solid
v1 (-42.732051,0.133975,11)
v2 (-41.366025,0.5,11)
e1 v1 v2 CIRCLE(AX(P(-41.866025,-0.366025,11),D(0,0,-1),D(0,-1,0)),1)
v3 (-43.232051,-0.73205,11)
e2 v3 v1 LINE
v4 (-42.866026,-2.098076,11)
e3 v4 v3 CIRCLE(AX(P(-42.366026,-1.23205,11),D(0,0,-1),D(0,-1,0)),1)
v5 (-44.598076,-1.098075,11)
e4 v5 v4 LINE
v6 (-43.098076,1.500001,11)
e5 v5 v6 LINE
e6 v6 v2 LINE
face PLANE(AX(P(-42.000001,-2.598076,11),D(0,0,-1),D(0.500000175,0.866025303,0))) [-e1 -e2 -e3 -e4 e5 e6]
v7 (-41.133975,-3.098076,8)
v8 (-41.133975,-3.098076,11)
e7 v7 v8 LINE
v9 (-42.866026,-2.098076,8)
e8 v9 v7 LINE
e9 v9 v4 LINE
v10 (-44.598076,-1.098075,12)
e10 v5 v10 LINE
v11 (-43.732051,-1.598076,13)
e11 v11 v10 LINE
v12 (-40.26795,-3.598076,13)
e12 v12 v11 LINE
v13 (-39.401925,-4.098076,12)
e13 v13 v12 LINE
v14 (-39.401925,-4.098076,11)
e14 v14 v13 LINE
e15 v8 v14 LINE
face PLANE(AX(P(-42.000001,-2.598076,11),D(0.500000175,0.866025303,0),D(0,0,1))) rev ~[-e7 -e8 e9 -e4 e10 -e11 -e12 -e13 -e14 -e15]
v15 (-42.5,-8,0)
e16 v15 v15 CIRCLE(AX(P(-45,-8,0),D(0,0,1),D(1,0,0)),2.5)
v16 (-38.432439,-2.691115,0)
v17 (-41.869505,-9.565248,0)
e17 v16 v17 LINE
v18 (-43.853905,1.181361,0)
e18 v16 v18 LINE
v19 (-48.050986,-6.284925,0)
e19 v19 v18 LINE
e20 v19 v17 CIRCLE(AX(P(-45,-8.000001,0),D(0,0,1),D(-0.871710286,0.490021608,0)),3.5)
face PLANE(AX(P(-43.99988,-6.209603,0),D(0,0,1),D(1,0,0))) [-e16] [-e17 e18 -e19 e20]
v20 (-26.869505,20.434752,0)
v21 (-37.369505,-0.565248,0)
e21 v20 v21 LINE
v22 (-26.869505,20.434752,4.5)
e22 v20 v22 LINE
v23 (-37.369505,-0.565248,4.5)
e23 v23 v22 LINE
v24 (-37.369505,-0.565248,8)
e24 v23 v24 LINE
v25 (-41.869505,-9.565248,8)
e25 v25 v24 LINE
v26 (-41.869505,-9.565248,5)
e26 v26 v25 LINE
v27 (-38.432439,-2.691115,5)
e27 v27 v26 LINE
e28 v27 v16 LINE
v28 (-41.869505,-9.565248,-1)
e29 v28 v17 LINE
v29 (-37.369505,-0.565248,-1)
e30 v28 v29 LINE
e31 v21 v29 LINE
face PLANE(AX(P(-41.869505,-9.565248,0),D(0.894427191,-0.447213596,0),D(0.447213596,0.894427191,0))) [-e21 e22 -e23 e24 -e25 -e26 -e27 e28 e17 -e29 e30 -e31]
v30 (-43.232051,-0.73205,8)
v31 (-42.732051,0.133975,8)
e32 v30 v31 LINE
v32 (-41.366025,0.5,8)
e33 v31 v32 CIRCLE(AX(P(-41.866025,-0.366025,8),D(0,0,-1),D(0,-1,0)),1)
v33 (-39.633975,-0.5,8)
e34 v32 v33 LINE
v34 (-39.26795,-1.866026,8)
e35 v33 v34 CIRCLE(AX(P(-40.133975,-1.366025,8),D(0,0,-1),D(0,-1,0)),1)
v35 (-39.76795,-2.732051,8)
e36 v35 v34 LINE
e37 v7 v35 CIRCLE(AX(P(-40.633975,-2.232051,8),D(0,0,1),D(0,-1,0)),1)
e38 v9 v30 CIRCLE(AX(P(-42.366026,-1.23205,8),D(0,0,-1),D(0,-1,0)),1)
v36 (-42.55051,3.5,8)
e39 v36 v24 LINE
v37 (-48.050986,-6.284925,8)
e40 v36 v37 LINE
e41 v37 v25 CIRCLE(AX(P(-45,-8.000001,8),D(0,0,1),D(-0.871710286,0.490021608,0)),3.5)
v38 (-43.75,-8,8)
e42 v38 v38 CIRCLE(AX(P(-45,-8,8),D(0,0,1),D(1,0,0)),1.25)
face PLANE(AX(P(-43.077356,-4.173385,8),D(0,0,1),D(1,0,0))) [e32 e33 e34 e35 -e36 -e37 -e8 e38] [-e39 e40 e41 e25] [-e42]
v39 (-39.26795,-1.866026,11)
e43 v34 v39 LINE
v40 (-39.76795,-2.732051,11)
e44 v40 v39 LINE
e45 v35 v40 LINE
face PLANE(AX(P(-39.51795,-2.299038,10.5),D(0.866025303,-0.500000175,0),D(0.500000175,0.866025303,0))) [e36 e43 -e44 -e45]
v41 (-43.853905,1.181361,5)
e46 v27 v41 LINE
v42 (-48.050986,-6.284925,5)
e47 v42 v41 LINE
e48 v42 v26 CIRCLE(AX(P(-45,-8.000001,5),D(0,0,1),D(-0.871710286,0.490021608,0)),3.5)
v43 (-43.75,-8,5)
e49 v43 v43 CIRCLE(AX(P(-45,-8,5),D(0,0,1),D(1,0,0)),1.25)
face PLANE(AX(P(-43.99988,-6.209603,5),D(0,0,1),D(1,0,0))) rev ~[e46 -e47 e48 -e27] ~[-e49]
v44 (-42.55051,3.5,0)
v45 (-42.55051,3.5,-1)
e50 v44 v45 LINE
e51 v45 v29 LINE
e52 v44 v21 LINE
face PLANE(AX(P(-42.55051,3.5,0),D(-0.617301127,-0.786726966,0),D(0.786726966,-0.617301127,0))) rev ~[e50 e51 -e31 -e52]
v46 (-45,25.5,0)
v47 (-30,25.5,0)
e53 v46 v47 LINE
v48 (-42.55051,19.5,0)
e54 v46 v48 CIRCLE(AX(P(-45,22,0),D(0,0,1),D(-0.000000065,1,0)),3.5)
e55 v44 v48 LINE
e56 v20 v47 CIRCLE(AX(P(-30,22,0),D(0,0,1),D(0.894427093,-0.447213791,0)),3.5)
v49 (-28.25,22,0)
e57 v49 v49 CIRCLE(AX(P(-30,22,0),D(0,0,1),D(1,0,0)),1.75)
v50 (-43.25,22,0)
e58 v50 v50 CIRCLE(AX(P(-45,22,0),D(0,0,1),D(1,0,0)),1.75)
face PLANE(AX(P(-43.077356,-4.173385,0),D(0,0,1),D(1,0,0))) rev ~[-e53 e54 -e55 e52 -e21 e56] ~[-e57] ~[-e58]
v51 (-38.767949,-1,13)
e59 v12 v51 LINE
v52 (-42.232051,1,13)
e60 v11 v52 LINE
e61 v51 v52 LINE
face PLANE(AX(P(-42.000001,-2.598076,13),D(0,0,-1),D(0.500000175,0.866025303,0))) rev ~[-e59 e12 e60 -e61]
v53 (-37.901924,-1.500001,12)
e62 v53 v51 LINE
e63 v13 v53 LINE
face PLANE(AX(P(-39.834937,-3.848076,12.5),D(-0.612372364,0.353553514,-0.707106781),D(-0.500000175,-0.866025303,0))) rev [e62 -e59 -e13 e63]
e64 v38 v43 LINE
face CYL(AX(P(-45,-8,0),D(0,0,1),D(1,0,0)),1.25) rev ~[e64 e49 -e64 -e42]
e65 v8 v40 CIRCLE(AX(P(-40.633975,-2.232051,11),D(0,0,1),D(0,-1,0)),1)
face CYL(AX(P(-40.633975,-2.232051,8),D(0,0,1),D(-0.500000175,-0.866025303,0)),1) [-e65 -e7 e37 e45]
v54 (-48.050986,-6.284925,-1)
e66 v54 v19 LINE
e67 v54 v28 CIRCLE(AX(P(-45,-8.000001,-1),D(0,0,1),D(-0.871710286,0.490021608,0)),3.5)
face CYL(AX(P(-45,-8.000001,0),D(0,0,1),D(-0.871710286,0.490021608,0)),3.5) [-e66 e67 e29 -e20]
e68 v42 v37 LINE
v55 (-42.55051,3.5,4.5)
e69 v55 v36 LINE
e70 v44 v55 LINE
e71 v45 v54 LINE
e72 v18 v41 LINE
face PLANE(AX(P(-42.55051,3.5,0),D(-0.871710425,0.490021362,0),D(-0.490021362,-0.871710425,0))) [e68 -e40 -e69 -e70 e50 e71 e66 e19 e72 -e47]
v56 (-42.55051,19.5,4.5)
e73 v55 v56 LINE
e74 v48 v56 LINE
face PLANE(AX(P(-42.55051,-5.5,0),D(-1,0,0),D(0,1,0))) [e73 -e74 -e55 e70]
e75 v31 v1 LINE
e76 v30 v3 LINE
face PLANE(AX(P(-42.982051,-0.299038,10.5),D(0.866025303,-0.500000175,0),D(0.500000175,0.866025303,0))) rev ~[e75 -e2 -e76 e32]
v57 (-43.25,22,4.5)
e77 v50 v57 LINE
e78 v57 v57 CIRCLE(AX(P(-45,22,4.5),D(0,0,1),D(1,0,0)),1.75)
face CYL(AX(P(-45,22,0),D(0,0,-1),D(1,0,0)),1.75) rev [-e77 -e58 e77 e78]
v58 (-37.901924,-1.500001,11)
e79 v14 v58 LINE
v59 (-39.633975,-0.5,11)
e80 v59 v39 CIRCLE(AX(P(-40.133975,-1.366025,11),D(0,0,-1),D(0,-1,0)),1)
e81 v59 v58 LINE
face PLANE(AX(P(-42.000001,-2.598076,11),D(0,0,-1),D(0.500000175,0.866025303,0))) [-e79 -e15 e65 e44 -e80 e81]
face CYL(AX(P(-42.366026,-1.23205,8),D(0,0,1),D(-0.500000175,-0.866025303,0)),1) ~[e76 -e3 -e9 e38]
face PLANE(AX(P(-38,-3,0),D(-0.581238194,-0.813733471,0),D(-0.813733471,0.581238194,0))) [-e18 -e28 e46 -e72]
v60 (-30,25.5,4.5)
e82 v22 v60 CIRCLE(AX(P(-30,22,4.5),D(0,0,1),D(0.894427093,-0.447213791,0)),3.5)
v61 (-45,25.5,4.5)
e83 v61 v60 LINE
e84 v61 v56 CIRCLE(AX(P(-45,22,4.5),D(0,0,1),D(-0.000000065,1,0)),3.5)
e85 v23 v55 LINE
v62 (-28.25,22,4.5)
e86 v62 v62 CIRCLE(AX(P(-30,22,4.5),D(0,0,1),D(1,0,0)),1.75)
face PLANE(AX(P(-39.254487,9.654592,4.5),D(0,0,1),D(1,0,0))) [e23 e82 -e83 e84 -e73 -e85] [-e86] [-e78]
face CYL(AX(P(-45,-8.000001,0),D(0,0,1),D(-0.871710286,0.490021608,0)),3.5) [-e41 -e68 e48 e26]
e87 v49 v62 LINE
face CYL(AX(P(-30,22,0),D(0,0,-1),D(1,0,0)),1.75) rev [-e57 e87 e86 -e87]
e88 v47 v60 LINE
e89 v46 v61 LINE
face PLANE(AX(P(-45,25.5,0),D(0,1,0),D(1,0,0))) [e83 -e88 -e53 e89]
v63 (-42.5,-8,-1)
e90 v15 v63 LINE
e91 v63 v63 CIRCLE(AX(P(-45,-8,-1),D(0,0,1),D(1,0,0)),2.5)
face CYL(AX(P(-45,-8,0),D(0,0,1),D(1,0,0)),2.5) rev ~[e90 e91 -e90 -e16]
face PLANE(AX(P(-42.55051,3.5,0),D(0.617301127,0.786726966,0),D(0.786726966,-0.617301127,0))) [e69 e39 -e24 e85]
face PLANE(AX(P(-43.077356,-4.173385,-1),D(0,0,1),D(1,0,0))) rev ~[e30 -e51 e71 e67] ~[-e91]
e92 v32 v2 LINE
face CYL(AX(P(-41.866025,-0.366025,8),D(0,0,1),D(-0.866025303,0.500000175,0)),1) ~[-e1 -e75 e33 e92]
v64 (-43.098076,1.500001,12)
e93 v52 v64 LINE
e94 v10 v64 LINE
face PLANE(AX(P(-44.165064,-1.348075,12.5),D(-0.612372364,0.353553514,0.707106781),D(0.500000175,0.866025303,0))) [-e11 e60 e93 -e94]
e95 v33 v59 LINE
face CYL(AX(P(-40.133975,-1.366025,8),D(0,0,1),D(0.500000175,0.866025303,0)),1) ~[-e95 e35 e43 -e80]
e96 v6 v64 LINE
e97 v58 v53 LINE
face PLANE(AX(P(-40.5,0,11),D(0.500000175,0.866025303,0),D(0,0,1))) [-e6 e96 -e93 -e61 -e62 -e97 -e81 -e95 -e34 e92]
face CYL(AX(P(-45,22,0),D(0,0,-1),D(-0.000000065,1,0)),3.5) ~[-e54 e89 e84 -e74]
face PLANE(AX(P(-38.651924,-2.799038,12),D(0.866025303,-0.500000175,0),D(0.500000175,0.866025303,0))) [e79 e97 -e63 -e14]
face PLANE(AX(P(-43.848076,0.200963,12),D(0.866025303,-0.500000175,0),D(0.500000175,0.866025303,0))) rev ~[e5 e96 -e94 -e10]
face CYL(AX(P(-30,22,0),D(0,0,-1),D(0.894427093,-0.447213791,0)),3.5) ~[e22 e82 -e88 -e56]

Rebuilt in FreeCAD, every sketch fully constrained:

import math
import FreeCAD as App
import Part
import Sketcher


def edges_at(feature, points):
    """Names of the edges that pass closest to the given points."""
    edges = feature.Shape.Edges
    near = lambda p: min(range(len(edges)), key=lambda i: edges[i].distToShape(Part.Vertex(*p))[0])
    return sorted({f"Edge{near(p) + 1}" for p in points})

doc = App.newDocument("Part")
params = doc.addObject("Spreadsheet::Sheet", "Params")
for row, (alias, value) in enumerate([
    ("sketch1_diameter", "2.5 mm"),
    ("sketch1_diameter2", "3.5 mm"),
    ("sketch1_radius", "3.5 mm"),
    ("sketch1_width", "15 mm"),
    ("sketch1_height", "25 mm"),
    ("pad1_length", "4.5 mm"),
    ("sketch2_diameter", "2.5 mm"),
    ("sketch2_radius", "3.5 mm"),
    ("pad2_length", "8 mm"),
    ("pad2_length2", "1 mm"),
    ("sketch3_width", "4 mm"),
    ("sketch3_width2", "11 mm"),
    ("sketch3_height", "10 mm"),
    ("sketch3_height2", "15 mm"),
    ("pocket1_length", "5 mm"),
    ("sketch4_diameter", "5 mm"),
    ("pocket2_length", "5 mm"),
    ("sketch5_width", "3 mm"),
    ("sketch5_height", "5 mm"),
    ("pad3_length", "4 mm"),
    ("sketch6_width", "3 mm"),
    ("sketch6_height", "2 mm"),
    ("pad4_length", "6 mm"),
    ("fillet_radius", "1 mm"),
    ("chamfer_size", "1 mm"),
], start=1):
    params.set(f"A{row}", alias)
    params.set(f"B{row}", "=" + value)
    params.setAlias(f"B{row}", alias)

body = doc.addObject("PartDesign::Body", "Body")

# Sketch on XY plane
sketch1 = body.newObject("Sketcher::SketchObject", "Sketch")
sketch1.AttachmentSupport = (doc.getObject("XY_Plane"), [""])
sketch1.MapMode = "FlatFace"
sketch1.addGeometry(Part.ArcOfCircle(Part.Circle(App.Vector(0, -30, 0), App.Vector(0, 0, 1), 3.5), math.radians(46), math.radians(333)), False)
sketch1.addGeometry(Part.LineSegment(App.Vector(3.1, -31.6, 0), App.Vector(18.1, -1.6, 0)), False)
sketch1.addGeometry(Part.ArcOfCircle(Part.Circle(App.Vector(15, 0, 0), App.Vector(0, 0, 1), 3.5), math.radians(-27), math.radians(90)), False)
sketch1.addGeometry(Part.LineSegment(App.Vector(15, 3.5, 0), App.Vector(0, 3.5, 0)), False)
sketch1.addGeometry(Part.ArcOfCircle(Part.Circle(App.Vector(0, 0, 0), App.Vector(0, 0, 1), 3.5), math.radians(90), math.radians(314)), False)
sketch1.addGeometry(Part.LineSegment(App.Vector(2.4, -2.5, 0), App.Vector(2.4, -27.5, 0)), False)
sketch1.addGeometry(Part.Circle(App.Vector(0, -30, 0), App.Vector(0, 0, 1), 1.2), False)
sketch1.addGeometry(Part.Circle(App.Vector(0, 0, 0), App.Vector(0, 0, 1), 1.8), False)
sketch1.addGeometry(Part.Circle(App.Vector(15, 0, 0), App.Vector(0, 0, 1), 1.8), False)
sketch1.addConstraint(Sketcher.Constraint("Tangent", 0, 2, 1, 1))
sketch1.addConstraint(Sketcher.Constraint("Tangent", 1, 2, 2, 1))
sketch1.addConstraint(Sketcher.Constraint("Tangent", 2, 2, 3, 1))
sketch1.addConstraint(Sketcher.Constraint("Tangent", 3, 2, 4, 1))
sketch1.addConstraint(Sketcher.Constraint("Coincident", 4, 2, 5, 1))
sketch1.addConstraint(Sketcher.Constraint("Coincident", 5, 2, 0, 1))
sketch1.addConstraint(Sketcher.Constraint("Horizontal", 3))
sketch1.addConstraint(Sketcher.Constraint("Vertical", 5))
sketch1.addConstraint(Sketcher.Constraint("Coincident", 4, 3, -1, 1))
sketch1.addConstraint(Sketcher.Constraint("Coincident", 7, 3, -1, 1))
sketch1.addConstraint(Sketcher.Constraint("Coincident", 6, 3, 0, 3))
sketch1.addConstraint(Sketcher.Constraint("Coincident", 8, 3, 2, 3))
sketch1.addConstraint(Sketcher.Constraint("Equal", 0, 2))
sketch1.addConstraint(Sketcher.Constraint("Equal", 2, 4))
sketch1.addConstraint(Sketcher.Constraint("Equal", 7, 8))
sketch1.addConstraint(Sketcher.Constraint("PointOnObject", 0, 3, -2))
sketch1.addConstraint(Sketcher.Constraint("Diameter", 6, 2.5))
sketch1.addConstraint(Sketcher.Constraint("Diameter", 7, 3.5))
sketch1.addConstraint(Sketcher.Constraint("Radius", 0, 3.5))
sketch1.addConstraint(Sketcher.Constraint("DistanceX", 3, 2, 3, 1, 15.0))
sketch1.addConstraint(Sketcher.Constraint("DistanceY", 5, 2, 5, 1, 25.0))
sketch1.addConstraint(Sketcher.Constraint("DistanceY", 0, 3, -1, 1, 30.0))
sketch1.setExpression("Constraints[16]", "Params.sketch1_diameter")
sketch1.setExpression("Constraints[17]", "Params.sketch1_diameter2")
sketch1.setExpression("Constraints[18]", "Params.sketch1_radius")
sketch1.setExpression("Constraints[19]", "Params.sketch1_width")
sketch1.setExpression("Constraints[20]", "Params.sketch1_height")
pad1 = body.newObject("PartDesign::Pad", "Pad")
pad1.Profile = sketch1
pad1.setExpression("Length", "Params.pad1_length")

# Sketch on XY plane
sketch2 = body.newObject("Sketcher::SketchObject", "Sketch001")
sketch2.AttachmentSupport = (doc.getObject("XY_Plane"), [""])
sketch2.MapMode = "FlatFace"
sketch2.addGeometry(Part.LineSegment(App.Vector(2.4, -18.5, 0), App.Vector(-3.1, -28.3, 0)), False)
sketch2.addGeometry(Part.ArcOfCircle(Part.Circle(App.Vector(0, -30, 0), App.Vector(0, 0, 1), 3.5), math.radians(151), math.radians(333)), False)
sketch2.addGeometry(Part.LineSegment(App.Vector(3.1, -31.6, 0), App.Vector(7.6, -22.6, 0)), False)
sketch2.addGeometry(Part.LineSegment(App.Vector(7.6, -22.6, 0), App.Vector(2.4, -18.5, 0)), False)
sketch2.addGeometry(Part.Circle(App.Vector(0, -30, 0), App.Vector(0, 0, 1), 1.2), False)
sketch2.addConstraint(Sketcher.Constraint("Tangent", 0, 2, 1, 1))
sketch2.addConstraint(Sketcher.Constraint("Tangent", 1, 2, 2, 1))
sketch2.addConstraint(Sketcher.Constraint("Coincident", 2, 2, 3, 1))
sketch2.addConstraint(Sketcher.Constraint("Coincident", 3, 2, 0, 1))
sketch2.addConstraint(Sketcher.Constraint("Coincident", 4, 3, 1, 3))
sketch2.addConstraint(Sketcher.Constraint("PointOnObject", 1, 3, -2))
sketch2.addConstraint(Sketcher.Constraint("Diameter", 4, 2.5))
sketch2.addConstraint(Sketcher.Constraint("Radius", 1, 3.5))
sketch2.addConstraint(Sketcher.Constraint("DistanceY", 1, 3, -1, 1, 30.000001))
sketch2.addConstraint(Sketcher.Constraint("DistanceY", 1, 2, 2, 2, 9.0))
sketch2.addConstraint(Sketcher.Constraint("DistanceY", 3, 2, -1, 1, 18.5))
sketch2.addConstraint(Sketcher.Constraint("DistanceX", 1, 2, 2, 2, 4.5))
sketch2.addConstraint(Sketcher.Constraint("Distance", 0, 11.224972))
sketch2.setExpression("Constraints[6]", "Params.sketch2_diameter")
sketch2.setExpression("Constraints[7]", "Params.sketch2_radius")
pad2 = body.newObject("PartDesign::Pad", "Pad001")
pad2.Profile = sketch2
pad2.Type = "TwoLengths"
pad2.setExpression("Length", "Params.pad2_length")
pad2.setExpression("Length2", "Params.pad2_length2")

# Sketch on XY plane
sketch3 = body.newObject("Sketcher::SketchObject", "Sketch002")
sketch3.AttachmentSupport = (doc.getObject("XY_Plane"), [""])
sketch3.MapMode = "FlatFace"
sketch3.addGeometry(Part.LineSegment(App.Vector(7, -35, 0), App.Vector(7, -25, 0)), False)
sketch3.addGeometry(Part.LineSegment(App.Vector(7, -25, 0), App.Vector(0, -20, 0)), False)
sketch3.addGeometry(Part.LineSegment(App.Vector(0, -20, 0), App.Vector(-4, -20, 0)), False)
sketch3.addGeometry(Part.LineSegment(App.Vector(-4, -20, 0), App.Vector(-4, -35, 0)), False)
sketch3.addGeometry(Part.LineSegment(App.Vector(-4, -35, 0), App.Vector(7, -35, 0)), False)
sketch3.addConstraint(Sketcher.Constraint("Coincident", 0, 2, 1, 1))
sketch3.addConstraint(Sketcher.Constraint("Coincident", 1, 2, 2, 1))
sketch3.addConstraint(Sketcher.Constraint("Coincident", 2, 2, 3, 1))
sketch3.addConstraint(Sketcher.Constraint("Coincident", 3, 2, 4, 1))
sketch3.addConstraint(Sketcher.Constraint("Coincident", 4, 2, 0, 1))
sketch3.addConstraint(Sketcher.Constraint("Vertical", 0))
sketch3.addConstraint(Sketcher.Constraint("Horizontal", 2))
sketch3.addConstraint(Sketcher.Constraint("Vertical", 3))
sketch3.addConstraint(Sketcher.Constraint("Horizontal", 4))
sketch3.addConstraint(Sketcher.Constraint("PointOnObject", 1, 2, -2))
sketch3.addConstraint(Sketcher.Constraint("DistanceX", 2, 2, 2, 1, 4.0))
sketch3.addConstraint(Sketcher.Constraint("DistanceX", 4, 1, 4, 2, 11.0))
sketch3.addConstraint(Sketcher.Constraint("DistanceY", 0, 1, 0, 2, 10.0))
sketch3.addConstraint(Sketcher.Constraint("DistanceY", 3, 2, 3, 1, 15.0))
sketch3.addConstraint(Sketcher.Constraint("DistanceY", 0, 2, -1, 1, 25.0))
sketch3.setExpression("Constraints[10]", "Params.sketch3_width")
sketch3.setExpression("Constraints[11]", "Params.sketch3_width2")
sketch3.setExpression("Constraints[12]", "Params.sketch3_height")
sketch3.setExpression("Constraints[13]", "Params.sketch3_height2")
pocket1 = body.newObject("PartDesign::Pocket", "Pocket")
pocket1.Profile = sketch3
pocket1.setExpression("Length", "Params.pocket1_length")
pocket1.Reversed = True

# Sketch on XY plane
sketch4 = body.newObject("Sketcher::SketchObject", "Sketch003")
sketch4.AttachmentSupport = (doc.getObject("XY_Plane"), [""])
sketch4.MapMode = "FlatFace"
sketch4.addGeometry(Part.Circle(App.Vector(0, -30, 0), App.Vector(0, 0, 1), 2.5), False)
sketch4.addConstraint(Sketcher.Constraint("PointOnObject", 0, 3, -2))
sketch4.addConstraint(Sketcher.Constraint("Diameter", 0, 5.0))
sketch4.addConstraint(Sketcher.Constraint("DistanceY", 0, 3, -1, 1, 30.0))
sketch4.setExpression("Constraints[1]", "Params.sketch4_diameter")
pocket2 = body.newObject("PartDesign::Pocket", "Pocket001")
pocket2.Profile = sketch4
pocket2.setExpression("Length", "Params.pocket2_length")

# Sketch on an angled plane
sketch5 = body.newObject("Sketcher::SketchObject", "Sketch004")
sketch5.Placement = App.Placement(App.Vector(4.5, -22, 8), App.Rotation(App.Vector(0.500000175, 0.866025303, 0), App.Vector(0, 0, 1), App.Vector(0.866025303, -0.500000175, 0), "ZXY"))
sketch5.addGeometry(Part.LineSegment(App.Vector(-3, 5, 0), App.Vector(-3, 0, 0)), False)
sketch5.addGeometry(Part.LineSegment(App.Vector(-3, 0, 0), App.Vector(0, 0, 0)), False)
sketch5.addGeometry(Part.LineSegment(App.Vector(0, 0, 0), App.Vector(0, 5, 0)), False)
sketch5.addGeometry(Part.LineSegment(App.Vector(0, 5, 0), App.Vector(-3, 5, 0)), False)
sketch5.addConstraint(Sketcher.Constraint("Coincident", 0, 2, 1, 1))
sketch5.addConstraint(Sketcher.Constraint("Coincident", 1, 2, 2, 1))
sketch5.addConstraint(Sketcher.Constraint("Coincident", 2, 2, 3, 1))
sketch5.addConstraint(Sketcher.Constraint("Coincident", 3, 2, 0, 1))
sketch5.addConstraint(Sketcher.Constraint("Vertical", 0))
sketch5.addConstraint(Sketcher.Constraint("Horizontal", 1))
sketch5.addConstraint(Sketcher.Constraint("Vertical", 2))
sketch5.addConstraint(Sketcher.Constraint("Horizontal", 3))
sketch5.addConstraint(Sketcher.Constraint("Coincident", 1, 2, -1, 1))
sketch5.addConstraint(Sketcher.Constraint("DistanceX", 1, 1, 1, 2, 3.0))
sketch5.addConstraint(Sketcher.Constraint("DistanceY", 0, 2, 0, 1, 5.0))
sketch5.setExpression("Constraints[9]", "Params.sketch5_width")
sketch5.setExpression("Constraints[10]", "Params.sketch5_height")
pad3 = body.newObject("PartDesign::Pad", "Pad002")
pad3.Profile = sketch5
pad3.setExpression("Length", "Params.pad3_length")
pad3.Midplane = True

# Sketch on an angled plane
sketch6 = body.newObject("Sketcher::SketchObject", "Sketch005")
sketch6.Placement = App.Placement(App.Vector(4.5, -22, 11), App.Rotation(App.Vector(0.500000175, 0.866025303, 0), App.Vector(0, 0, 1), App.Vector(0.866025303, -0.500000175, 0), "ZXY"))
sketch6.addGeometry(Part.LineSegment(App.Vector(-3, 2, 0), App.Vector(-3, 0, 0)), False)
sketch6.addGeometry(Part.LineSegment(App.Vector(-3, 0, 0), App.Vector(0, 0, 0)), False)
sketch6.addGeometry(Part.LineSegment(App.Vector(0, 0, 0), App.Vector(0, 2, 0)), False)
sketch6.addGeometry(Part.LineSegment(App.Vector(0, 2, 0), App.Vector(-3, 2, 0)), False)
sketch6.addConstraint(Sketcher.Constraint("Coincident", 0, 2, 1, 1))
sketch6.addConstraint(Sketcher.Constraint("Coincident", 1, 2, 2, 1))
sketch6.addConstraint(Sketcher.Constraint("Coincident", 2, 2, 3, 1))
sketch6.addConstraint(Sketcher.Constraint("Coincident", 3, 2, 0, 1))
sketch6.addConstraint(Sketcher.Constraint("Vertical", 0))
sketch6.addConstraint(Sketcher.Constraint("Horizontal", 1))
sketch6.addConstraint(Sketcher.Constraint("Vertical", 2))
sketch6.addConstraint(Sketcher.Constraint("Horizontal", 3))
sketch6.addConstraint(Sketcher.Constraint("Coincident", 1, 2, -1, 1))
sketch6.addConstraint(Sketcher.Constraint("DistanceX", 1, 1, 1, 2, 3.0))
sketch6.addConstraint(Sketcher.Constraint("DistanceY", 0, 2, 0, 1, 2.0))
sketch6.setExpression("Constraints[9]", "Params.sketch6_width")
sketch6.setExpression("Constraints[10]", "Params.sketch6_height")
pad4 = body.newObject("PartDesign::Pad", "Pad003")
pad4.Profile = sketch6
pad4.setExpression("Length", "Params.pad4_length")
pad4.Midplane = True
doc.recompute()

fillet = body.newObject("PartDesign::Fillet", "Fillet")
fillet.Base = (pad4, edges_at(pad4, [
    (1.268, -23.598, 9.5),
    (2.768, -21, 9.5),
    (6.232, -23, 9.5),
    (4.732, -25.598, 9.5),
]))
fillet.setExpression("Radius", "Params.fillet_radius")
doc.recompute()

chamfer = body.newObject("PartDesign::Chamfer", "Chamfer")
chamfer.Base = (fillet, edges_at(fillet, [(6.348, -24.799, 13), (1.152, -21.799, 13)]))
chamfer.setExpression("Size", "Params.chamfer_size")
body2 = doc.addObject("PartDesign::Body", "Body001")
doc.recompute()

body.Placement = App.Placement(App.Vector(-45, 22, 0), App.Rotation(App.Vector(0, 0, 1), 0))
boolean = body2.newObject("PartDesign::Boolean", "Boolean")
boolean.Type = "Fuse"
boolean.addObjects([body])

doc.recompute()
